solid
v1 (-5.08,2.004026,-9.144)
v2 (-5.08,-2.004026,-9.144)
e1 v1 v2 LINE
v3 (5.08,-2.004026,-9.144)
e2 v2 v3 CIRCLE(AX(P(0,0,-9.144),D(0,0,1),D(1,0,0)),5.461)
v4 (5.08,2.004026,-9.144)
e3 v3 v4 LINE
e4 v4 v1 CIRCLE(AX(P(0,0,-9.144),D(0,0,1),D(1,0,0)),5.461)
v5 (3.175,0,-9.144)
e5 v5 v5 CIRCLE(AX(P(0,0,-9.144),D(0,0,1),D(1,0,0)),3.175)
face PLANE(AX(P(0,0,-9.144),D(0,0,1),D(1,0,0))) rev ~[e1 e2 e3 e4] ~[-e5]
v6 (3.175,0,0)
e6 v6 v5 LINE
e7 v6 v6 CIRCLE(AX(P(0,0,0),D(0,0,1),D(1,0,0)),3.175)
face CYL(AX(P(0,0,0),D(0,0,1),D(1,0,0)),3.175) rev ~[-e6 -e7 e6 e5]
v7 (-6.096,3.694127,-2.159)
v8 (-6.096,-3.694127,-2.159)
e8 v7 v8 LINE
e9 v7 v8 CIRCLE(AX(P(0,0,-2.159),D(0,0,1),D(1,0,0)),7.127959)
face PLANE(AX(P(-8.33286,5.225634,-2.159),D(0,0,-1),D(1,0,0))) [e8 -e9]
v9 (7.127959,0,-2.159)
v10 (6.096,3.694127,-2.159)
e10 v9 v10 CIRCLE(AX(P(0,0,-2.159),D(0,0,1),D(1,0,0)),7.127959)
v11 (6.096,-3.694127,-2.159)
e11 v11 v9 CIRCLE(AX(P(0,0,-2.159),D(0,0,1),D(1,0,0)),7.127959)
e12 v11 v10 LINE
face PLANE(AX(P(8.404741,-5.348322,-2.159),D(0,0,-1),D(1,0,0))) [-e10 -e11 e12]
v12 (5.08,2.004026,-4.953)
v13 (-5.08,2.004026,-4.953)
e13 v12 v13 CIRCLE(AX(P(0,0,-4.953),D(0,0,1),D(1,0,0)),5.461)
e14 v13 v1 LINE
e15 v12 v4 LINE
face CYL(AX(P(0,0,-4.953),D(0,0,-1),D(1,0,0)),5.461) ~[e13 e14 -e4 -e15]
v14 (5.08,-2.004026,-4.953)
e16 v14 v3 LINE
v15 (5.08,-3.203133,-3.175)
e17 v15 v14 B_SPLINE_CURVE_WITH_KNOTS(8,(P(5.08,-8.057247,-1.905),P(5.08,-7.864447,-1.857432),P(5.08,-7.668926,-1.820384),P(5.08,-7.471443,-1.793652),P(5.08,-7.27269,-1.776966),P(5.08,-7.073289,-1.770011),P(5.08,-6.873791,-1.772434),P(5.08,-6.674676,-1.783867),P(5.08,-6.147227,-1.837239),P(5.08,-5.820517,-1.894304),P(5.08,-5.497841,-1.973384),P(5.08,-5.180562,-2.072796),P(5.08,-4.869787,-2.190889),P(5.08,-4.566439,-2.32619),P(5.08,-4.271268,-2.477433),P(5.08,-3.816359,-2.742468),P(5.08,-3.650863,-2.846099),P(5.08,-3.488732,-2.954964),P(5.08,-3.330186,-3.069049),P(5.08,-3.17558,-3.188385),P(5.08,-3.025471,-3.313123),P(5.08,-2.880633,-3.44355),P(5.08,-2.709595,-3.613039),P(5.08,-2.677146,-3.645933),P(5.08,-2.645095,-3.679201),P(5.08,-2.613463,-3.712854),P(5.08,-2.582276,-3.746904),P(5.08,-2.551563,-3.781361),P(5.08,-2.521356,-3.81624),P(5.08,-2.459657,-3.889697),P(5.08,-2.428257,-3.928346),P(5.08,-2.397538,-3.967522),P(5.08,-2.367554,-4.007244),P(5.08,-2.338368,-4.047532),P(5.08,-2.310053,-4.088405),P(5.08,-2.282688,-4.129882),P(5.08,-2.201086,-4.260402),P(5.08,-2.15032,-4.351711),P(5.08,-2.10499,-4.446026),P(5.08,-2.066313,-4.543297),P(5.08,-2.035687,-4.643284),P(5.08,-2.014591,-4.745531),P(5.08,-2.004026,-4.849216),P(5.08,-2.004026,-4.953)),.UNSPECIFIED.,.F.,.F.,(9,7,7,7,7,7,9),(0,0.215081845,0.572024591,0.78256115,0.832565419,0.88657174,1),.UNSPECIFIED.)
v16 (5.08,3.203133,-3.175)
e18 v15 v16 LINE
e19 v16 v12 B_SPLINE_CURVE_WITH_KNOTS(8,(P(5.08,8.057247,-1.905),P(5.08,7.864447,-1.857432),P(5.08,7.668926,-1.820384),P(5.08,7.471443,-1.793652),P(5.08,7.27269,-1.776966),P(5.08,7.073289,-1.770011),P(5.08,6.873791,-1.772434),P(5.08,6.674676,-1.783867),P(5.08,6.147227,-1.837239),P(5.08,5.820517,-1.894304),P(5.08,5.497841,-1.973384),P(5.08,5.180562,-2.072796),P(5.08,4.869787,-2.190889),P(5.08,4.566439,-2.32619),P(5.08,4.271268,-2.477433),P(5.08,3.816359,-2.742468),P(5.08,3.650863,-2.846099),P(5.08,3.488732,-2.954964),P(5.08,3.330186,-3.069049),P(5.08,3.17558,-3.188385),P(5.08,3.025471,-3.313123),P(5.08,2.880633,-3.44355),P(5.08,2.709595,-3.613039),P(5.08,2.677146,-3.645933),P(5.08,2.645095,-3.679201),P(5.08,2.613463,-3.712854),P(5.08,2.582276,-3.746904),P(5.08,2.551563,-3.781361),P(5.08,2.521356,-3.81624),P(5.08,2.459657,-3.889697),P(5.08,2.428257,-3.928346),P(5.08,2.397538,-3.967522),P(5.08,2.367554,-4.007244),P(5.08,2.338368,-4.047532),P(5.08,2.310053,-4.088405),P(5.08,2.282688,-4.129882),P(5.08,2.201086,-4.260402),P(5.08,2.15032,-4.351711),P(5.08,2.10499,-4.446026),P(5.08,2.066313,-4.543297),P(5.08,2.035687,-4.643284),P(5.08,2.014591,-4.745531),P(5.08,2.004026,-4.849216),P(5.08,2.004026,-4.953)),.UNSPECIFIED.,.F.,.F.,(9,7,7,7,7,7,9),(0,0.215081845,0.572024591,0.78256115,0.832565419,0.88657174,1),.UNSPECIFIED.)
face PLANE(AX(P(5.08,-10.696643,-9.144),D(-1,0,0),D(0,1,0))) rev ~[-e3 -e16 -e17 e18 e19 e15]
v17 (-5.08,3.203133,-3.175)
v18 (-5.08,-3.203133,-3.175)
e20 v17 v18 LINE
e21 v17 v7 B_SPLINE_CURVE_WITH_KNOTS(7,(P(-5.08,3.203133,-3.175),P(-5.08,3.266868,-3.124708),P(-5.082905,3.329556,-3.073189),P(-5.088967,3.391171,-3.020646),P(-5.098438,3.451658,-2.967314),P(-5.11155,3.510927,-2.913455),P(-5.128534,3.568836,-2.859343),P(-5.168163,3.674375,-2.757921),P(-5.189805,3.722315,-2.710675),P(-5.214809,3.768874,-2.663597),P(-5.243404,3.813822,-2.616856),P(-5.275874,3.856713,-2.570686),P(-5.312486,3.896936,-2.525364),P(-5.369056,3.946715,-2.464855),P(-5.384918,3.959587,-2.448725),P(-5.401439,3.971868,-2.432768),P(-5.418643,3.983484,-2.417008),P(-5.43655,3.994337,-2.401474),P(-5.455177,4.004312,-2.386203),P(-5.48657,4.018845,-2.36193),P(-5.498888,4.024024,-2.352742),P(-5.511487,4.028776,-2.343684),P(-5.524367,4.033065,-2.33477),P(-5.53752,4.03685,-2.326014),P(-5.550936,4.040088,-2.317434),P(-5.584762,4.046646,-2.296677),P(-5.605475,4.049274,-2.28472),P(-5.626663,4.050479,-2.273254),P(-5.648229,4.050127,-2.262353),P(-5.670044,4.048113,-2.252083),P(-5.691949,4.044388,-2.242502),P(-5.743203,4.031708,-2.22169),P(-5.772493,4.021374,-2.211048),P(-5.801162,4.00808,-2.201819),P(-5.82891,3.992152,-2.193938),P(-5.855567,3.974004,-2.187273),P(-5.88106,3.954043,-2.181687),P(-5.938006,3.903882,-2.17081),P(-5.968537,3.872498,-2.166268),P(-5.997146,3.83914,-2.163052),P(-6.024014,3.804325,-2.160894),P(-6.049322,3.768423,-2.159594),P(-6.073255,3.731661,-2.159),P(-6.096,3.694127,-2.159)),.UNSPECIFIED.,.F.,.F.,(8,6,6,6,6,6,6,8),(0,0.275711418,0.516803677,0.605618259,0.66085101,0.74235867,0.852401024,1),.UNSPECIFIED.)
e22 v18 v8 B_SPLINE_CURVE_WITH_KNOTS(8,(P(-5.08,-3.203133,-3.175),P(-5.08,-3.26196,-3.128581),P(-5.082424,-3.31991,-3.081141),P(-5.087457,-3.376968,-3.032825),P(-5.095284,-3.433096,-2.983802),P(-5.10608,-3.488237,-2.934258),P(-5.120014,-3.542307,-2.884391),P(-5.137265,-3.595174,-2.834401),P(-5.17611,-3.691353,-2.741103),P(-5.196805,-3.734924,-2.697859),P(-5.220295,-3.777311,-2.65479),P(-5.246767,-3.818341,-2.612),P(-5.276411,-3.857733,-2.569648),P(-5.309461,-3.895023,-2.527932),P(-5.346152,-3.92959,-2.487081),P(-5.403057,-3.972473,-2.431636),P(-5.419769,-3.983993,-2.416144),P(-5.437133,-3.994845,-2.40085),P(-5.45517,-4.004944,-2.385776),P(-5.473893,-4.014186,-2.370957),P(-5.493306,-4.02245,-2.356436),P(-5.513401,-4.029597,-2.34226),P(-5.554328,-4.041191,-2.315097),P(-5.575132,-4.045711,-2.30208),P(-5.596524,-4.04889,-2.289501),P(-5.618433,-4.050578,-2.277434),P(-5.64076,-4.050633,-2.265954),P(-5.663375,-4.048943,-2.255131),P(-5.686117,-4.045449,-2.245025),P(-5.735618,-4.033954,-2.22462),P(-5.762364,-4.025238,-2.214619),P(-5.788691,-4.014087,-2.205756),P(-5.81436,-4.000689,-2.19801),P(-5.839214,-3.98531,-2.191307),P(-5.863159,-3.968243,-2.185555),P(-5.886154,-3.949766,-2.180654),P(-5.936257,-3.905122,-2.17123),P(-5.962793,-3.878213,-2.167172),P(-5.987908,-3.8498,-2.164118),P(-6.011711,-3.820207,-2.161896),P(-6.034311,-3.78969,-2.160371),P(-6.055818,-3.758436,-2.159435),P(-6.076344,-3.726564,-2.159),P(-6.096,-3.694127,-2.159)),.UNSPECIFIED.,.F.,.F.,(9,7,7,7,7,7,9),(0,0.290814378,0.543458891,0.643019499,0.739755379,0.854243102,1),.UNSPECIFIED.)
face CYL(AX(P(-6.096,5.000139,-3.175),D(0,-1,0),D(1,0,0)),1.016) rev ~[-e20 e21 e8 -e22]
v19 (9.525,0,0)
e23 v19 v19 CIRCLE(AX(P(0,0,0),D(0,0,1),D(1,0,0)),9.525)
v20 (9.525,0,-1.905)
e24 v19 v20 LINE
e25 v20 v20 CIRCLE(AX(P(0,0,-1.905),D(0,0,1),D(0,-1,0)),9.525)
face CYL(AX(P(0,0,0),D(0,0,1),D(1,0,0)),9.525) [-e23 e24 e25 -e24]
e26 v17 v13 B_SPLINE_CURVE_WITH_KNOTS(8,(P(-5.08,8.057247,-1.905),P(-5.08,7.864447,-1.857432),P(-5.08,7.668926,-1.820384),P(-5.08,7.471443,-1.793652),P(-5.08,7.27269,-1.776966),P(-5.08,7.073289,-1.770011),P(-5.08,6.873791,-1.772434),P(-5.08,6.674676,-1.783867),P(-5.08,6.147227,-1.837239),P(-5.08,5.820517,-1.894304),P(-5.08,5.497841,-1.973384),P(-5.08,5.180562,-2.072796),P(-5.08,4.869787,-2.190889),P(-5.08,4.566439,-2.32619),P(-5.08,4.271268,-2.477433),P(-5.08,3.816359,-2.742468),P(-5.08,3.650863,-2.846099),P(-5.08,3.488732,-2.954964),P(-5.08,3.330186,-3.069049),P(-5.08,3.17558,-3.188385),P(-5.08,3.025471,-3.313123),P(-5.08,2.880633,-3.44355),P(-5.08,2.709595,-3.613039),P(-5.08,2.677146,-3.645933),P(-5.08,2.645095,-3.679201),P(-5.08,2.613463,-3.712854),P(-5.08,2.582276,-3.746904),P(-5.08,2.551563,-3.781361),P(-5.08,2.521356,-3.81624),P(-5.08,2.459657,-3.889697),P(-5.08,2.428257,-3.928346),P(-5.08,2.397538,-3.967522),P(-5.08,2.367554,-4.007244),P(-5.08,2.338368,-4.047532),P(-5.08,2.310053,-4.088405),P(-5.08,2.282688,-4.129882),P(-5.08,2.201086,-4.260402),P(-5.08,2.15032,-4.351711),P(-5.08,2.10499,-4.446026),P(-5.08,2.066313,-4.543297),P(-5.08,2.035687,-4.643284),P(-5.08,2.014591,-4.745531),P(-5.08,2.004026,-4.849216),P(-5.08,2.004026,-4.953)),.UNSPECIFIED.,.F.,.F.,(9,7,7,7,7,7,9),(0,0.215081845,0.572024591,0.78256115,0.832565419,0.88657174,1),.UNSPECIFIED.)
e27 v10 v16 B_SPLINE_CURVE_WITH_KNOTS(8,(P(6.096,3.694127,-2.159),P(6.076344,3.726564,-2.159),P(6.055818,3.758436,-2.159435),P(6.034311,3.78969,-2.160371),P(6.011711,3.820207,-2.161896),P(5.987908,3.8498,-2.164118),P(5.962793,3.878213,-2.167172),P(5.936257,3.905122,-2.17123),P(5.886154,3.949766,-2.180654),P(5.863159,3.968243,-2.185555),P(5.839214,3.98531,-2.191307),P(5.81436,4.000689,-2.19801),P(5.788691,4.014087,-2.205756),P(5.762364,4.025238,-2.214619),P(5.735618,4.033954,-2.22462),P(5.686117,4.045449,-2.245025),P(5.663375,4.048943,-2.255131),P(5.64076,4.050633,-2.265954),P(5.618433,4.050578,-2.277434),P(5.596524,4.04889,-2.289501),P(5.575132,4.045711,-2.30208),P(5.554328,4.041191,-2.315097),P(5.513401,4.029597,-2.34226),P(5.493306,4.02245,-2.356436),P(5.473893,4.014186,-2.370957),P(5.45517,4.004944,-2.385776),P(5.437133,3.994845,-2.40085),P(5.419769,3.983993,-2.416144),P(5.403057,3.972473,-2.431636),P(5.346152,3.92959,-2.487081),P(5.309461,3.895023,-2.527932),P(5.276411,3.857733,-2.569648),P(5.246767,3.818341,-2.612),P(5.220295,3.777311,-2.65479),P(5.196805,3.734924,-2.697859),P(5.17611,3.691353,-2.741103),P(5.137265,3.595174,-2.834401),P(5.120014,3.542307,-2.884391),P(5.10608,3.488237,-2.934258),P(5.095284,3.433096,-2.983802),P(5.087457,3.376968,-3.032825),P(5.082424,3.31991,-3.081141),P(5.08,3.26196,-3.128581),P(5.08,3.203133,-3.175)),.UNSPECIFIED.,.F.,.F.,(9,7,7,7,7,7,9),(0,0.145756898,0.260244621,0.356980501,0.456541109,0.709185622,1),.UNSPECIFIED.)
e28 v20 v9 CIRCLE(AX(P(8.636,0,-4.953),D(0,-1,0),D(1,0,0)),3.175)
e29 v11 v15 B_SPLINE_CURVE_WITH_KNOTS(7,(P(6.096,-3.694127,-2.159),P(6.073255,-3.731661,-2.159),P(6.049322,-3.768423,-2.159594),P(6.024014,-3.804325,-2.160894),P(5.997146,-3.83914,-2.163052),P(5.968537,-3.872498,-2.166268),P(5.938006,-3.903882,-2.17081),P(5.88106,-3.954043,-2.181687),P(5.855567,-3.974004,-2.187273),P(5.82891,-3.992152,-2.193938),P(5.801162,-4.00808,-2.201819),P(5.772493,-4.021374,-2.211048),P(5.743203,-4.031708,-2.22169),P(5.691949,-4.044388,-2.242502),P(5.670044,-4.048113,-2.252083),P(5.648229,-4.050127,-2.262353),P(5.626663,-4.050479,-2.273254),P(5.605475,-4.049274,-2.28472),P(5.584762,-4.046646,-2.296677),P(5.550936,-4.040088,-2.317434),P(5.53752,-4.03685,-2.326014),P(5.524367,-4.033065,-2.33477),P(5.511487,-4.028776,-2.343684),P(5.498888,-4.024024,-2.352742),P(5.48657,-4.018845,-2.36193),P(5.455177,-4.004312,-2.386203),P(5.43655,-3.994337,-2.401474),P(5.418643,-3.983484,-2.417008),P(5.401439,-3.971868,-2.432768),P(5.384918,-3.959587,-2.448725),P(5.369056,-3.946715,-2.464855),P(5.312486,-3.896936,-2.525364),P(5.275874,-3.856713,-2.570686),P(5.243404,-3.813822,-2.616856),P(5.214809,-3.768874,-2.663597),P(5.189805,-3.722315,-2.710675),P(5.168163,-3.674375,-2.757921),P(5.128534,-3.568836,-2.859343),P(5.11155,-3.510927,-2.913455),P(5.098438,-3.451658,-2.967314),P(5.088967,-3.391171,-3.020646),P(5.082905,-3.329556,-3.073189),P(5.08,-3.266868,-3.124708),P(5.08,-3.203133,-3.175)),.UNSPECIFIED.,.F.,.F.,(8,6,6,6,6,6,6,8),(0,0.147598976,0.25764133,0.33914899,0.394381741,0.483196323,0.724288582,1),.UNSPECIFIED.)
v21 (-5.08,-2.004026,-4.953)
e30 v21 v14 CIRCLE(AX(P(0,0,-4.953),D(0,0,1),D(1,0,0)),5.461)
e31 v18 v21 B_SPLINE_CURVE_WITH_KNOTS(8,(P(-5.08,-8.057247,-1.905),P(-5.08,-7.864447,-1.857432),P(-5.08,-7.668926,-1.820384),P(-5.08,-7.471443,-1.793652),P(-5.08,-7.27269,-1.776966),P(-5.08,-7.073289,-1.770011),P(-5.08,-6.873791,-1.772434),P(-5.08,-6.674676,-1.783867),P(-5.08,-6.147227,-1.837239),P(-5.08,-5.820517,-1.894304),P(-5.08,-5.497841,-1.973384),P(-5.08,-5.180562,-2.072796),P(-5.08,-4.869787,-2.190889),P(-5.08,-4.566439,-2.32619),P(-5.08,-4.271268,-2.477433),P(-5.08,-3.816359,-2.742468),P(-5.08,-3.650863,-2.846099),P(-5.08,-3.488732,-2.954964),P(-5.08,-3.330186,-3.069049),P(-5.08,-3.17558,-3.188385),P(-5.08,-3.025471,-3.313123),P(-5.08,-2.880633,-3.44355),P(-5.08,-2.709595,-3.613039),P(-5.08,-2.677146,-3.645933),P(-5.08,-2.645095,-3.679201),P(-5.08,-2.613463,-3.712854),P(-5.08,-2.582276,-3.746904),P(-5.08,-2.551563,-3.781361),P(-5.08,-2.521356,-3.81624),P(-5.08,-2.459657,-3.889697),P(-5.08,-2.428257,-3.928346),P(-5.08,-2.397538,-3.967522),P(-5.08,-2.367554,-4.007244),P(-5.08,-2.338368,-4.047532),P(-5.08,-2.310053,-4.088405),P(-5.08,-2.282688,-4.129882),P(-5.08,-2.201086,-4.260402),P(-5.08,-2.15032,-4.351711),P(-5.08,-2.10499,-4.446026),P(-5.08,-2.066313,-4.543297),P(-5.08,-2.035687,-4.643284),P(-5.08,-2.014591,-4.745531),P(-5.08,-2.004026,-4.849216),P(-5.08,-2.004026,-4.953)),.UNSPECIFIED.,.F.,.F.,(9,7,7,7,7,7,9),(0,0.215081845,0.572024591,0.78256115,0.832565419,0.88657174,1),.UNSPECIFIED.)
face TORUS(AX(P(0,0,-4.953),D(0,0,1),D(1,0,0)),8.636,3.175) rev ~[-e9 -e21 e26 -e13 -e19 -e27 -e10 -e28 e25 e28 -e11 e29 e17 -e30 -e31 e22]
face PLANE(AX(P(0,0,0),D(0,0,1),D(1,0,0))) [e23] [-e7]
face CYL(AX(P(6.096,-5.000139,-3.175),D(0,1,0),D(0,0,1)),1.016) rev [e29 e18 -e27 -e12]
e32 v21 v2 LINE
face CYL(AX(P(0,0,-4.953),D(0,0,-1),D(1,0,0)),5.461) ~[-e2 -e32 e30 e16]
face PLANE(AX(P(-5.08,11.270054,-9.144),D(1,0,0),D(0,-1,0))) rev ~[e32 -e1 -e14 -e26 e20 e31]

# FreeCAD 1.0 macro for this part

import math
import FreeCAD as App
import Part
import Sketcher
Q = App.Units.Quantity


def edges_at(feature, points):
    """Names of the edges that pass closest to the given points."""
    edges = feature.Shape.Edges
    near = lambda p: min(range(len(edges)), key=lambda i: edges[i].distToShape(Part.Vertex(*p))[0])
    return sorted({f"Edge{near(p) + 1}" for p in points})

doc = App.newDocument("Part")
params = doc.addObject("Spreadsheet::Sheet", "Params")
for row, (alias, value) in enumerate([
    ("sketch1_diameter", "0.75 in"),
    ("sketch1_diameter2", "0.25 in"),
    ("pad1_length", "1 in"),
    ("sketch2_height", "1 in"),
    ("sketch2_radius", "0.125 in"),
    ("sketch2_width", "0.215 in"),
    ("sketch2_height2", "0.165 in"),
    ("groove_angle", "360 deg"),
    ("sketch3_width", "0.01 in"),
    ("sketch3_width2", "0.015 in"),
    ("pocket1_length", "0.275 in"),
    ("fillet_radius", "0.04 in"),
], start=1):
    params.set(f"A{row}", alias)
    params.set(f"B{row}", "=" + value)
    params.setAlias(f"B{row}", alias)

body = doc.addObject("PartDesign::Body", "Body")

sketch1 = body.newObject("Sketcher::SketchObject", "Sketch")
sketch1.AttachmentSupport = (doc.getObject("XY_Plane"), [""])
sketch1.MapMode = "FlatFace"
sketch1.addGeometry([
    Part.Circle(App.Vector(0, 0, 0), App.Vector(0, 0, 1), 9.5),
    Part.Circle(App.Vector(0, 0, 0), App.Vector(0, 0, 1), 3.2),
], False)
sketch1.addConstraint([
    Sketcher.Constraint("Coincident", 0, 3, -1, 1),
    Sketcher.Constraint("Coincident", 1, 3, -1, 1),
    Sketcher.Constraint("Diameter", 0, Q("0.75 in")),
    Sketcher.Constraint("Diameter", 1, Q("0.25 in")),
])
sketch1.setExpression("Constraints[2]", "Params.sketch1_diameter")
sketch1.setExpression("Constraints[3]", "Params.sketch1_diameter2")
pad1 = body.newObject("PartDesign::Pad", "Pad")
pad1.Profile = sketch1
pad1.setExpression("Length", "Params.pad1_length")
pad1.Reversed = True

sketch2 = body.newObject("Sketcher::SketchObject", "Sketch001")
sketch2.AttachmentSupport = (doc.getObject("XZ_Plane"), [""])
sketch2.MapMode = "FlatFace"
sketch2.addGeometry([
    Part.ArcOfCircle(Part.Circle(App.Vector(8.6, -5, 0), App.Vector(0, 0, 1), 3.2), math.radians(-40), math.radians(0)),
    Part.ArcOfCircle(Part.Circle(App.Vector(8.6, -5, 0), App.Vector(0, 0, 1), 3.2), math.radians(0), math.radians(180)),
    Part.LineSegment(App.Vector(5.5, -5, 0), App.Vector(5.5, -9.1, 0)),
    Part.LineSegment(App.Vector(5.5, -9.1, 0), App.Vector(0, -9.1, 0)),
    Part.LineSegment(App.Vector(0, -9.1, 0), App.Vector(0, -34.5, 0)),
    Part.LineSegment(App.Vector(0, -34.5, 0), App.Vector(12.1, -34.5, 0)),
    Part.LineSegment(App.Vector(12.1, -34.5, 0), App.Vector(12.1, -9.1, 0)),
    Part.LineSegment(App.Vector(12.1, -9.1, 0), App.Vector(11.1, -9.1, 0)),
    Part.LineSegment(App.Vector(11.1, -9.1, 0), App.Vector(11.1, -7, 0)),
], False)
sketch2.addConstraint([
    Sketcher.Constraint("Tangent", 0, 2, 1, 1),
    Sketcher.Constraint("Tangent", 1, 2, 2, 1),
    Sketcher.Constraint("Coincident", 2, 2, 3, 1),
    Sketcher.Constraint("Coincident", 3, 2, 4, 1),
    Sketcher.Constraint("Coincident", 4, 2, 5, 1),
    Sketcher.Constraint("Coincident", 5, 2, 6, 1),
    Sketcher.Constraint("Coincident", 6, 2, 7, 1),
    Sketcher.Constraint("Coincident", 7, 2, 8, 1),
    Sketcher.Constraint("Coincident", 8, 2, 0, 1),
    Sketcher.Constraint("Vertical", 2),
    Sketcher.Constraint("Horizontal", 3),
    Sketcher.Constraint("Vertical", 4),
    Sketcher.Constraint("Horizontal", 5),
    Sketcher.Constraint("Vertical", 6),
    Sketcher.Constraint("Horizontal", 7),
    Sketcher.Constraint("Vertical", 8),
    Sketcher.Constraint("Equal", 0, 1),
    Sketcher.Constraint("PointOnObject", 3, 2, -2),
    Sketcher.Constraint("Horizontal", 1, 3, 0, 2),
    Sketcher.Constraint("Horizontal", 3, 2, 6, 2),
    Sketcher.Constraint("DistanceY", 4, 2, 4, 1, Q("1 in")),
    Sketcher.Constraint("Radius", 0, Q("0.125 in")),
    Sketcher.Constraint("DistanceX", 3, 2, 3, 1, Q("0.215 in")),
    Sketcher.Constraint("DistanceY", 2, 2, 2, 1, Q("0.165 in")),
    Sketcher.Constraint("DistanceY", 2, 2, -1, 1, Q("0.36 in")),
    Sketcher.Constraint("DistanceX", 5, 1, 5, 2, Q("12.064161 mm")),
    Sketcher.Constraint("DistanceX", 7, 2, 7, 1, Q("1.007218 mm")),
])
sketch2.setExpression("Constraints[20]", "Params.sketch2_height")
sketch2.setExpression("Constraints[21]", "Params.sketch2_radius")
sketch2.setExpression("Constraints[22]", "Params.sketch2_width")
sketch2.setExpression("Constraints[23]", "Params.sketch2_height2")
groove = body.newObject("PartDesign::Groove", "Groove")
groove.Profile = sketch2
groove.ReferenceAxis = (sketch2, ["V_Axis"])
groove.setExpression("Angle", "Params.groove_angle")

sketch3 = body.newObject("Sketcher::SketchObject", "Sketch002")
sketch3.AttachmentSupport = (doc.getObject("XY_Plane"), [""])
sketch3.MapMode = "FlatFace"
sketch3.AttachmentOffset = App.Placement(App.Vector(0, 0, -0.36 * 25.4), App.Rotation())
sketch3.addGeometry([
    Part.LineSegment(App.Vector(-11.2, 10.45, 0), App.Vector(-5.46, 10.45, 0)),
    Part.LineSegment(App.Vector(-5.46, 10.45, 0), App.Vector(-5.46, 11.27, 0)),
    Part.LineSegment(App.Vector(-5.46, 11.27, 0), App.Vector(-5.08, 11.27, 0)),
    Part.LineSegment(App.Vector(-5.08, 11.27, 0), App.Vector(-5.08, -14.19, 0)),
    Part.LineSegment(App.Vector(-5.08, -14.19, 0), App.Vector(-11.2, -14.19, 0)),
    Part.LineSegment(App.Vector(-11.2, -14.19, 0), App.Vector(-11.2, 10.45, 0)),
    Part.LineSegment(App.Vector(5.08, 9.07, 0), App.Vector(5.46, 9.07, 0)),
    Part.LineSegment(App.Vector(5.46, 9.07, 0), App.Vector(5.46, 9.42, 0)),
    Part.LineSegment(App.Vector(5.46, 9.42, 0), App.Vector(11.6, 9.42, 0)),
    Part.LineSegment(App.Vector(11.6, 9.42, 0), App.Vector(11.6, 0, 0)),
    Part.LineSegment(App.Vector(11.6, 0, 0), App.Vector(11.35, 0, 0)),
    Part.LineSegment(App.Vector(11.35, 0, 0), App.Vector(11.35, -10.7, 0)),
    Part.LineSegment(App.Vector(11.35, -10.7, 0), App.Vector(5.46, -10.7, 0)),
    Part.LineSegment(App.Vector(5.46, -10.7, 0), App.Vector(5.08, -10.7, 0)),
    Part.LineSegment(App.Vector(5.08, -10.7, 0), App.Vector(5.08, 9.07, 0)),
], False)
sketch3.addConstraint([
    Sketcher.Constraint("Coincident", 0, 2, 1, 1),
    Sketcher.Constraint("Coincident", 1, 2, 2, 1),
    Sketcher.Constraint("Coincident", 2, 2, 3, 1),
    Sketcher.Constraint("Coincident", 3, 2, 4, 1),
    Sketcher.Constraint("Coincident", 4, 2, 5, 1),
    Sketcher.Constraint("Coincident", 5, 2, 0, 1),
    Sketcher.Constraint("Coincident", 6, 2, 7, 1),
    Sketcher.Constraint("Coincident", 7, 2, 8, 1),
    Sketcher.Constraint("Coincident", 8, 2, 9, 1),
    Sketcher.Constraint("Coincident", 9, 2, 10, 1),
    Sketcher.Constraint("Coincident", 10, 2, 11, 1),
    Sketcher.Constraint("Coincident", 11, 2, 12, 1),
    Sketcher.Constraint("Coincident", 12, 2, 13, 1),
    Sketcher.Constraint("Coincident", 13, 2, 14, 1),
    Sketcher.Constraint("Coincident", 14, 2, 6, 1),
    Sketcher.Constraint("Horizontal", 0),
    Sketcher.Constraint("Vertical", 1),
    Sketcher.Constraint("Horizontal", 2),
    Sketcher.Constraint("Vertical", 3),
    Sketcher.Constraint("Horizontal", 4),
    Sketcher.Constraint("Vertical", 5),
    Sketcher.Constraint("Horizontal", 6),
    Sketcher.Constraint("Vertical", 7),
    Sketcher.Constraint("Horizontal", 8),
    Sketcher.Constraint("Vertical", 9),
    Sketcher.Constraint("Horizontal", 10),
    Sketcher.Constraint("Vertical", 11),
    Sketcher.Constraint("Horizontal", 12),
    Sketcher.Constraint("Horizontal", 13),
    Sketcher.Constraint("Vertical", 14),
    Sketcher.Constraint("PointOnObject", 9, 2, -1),
    Sketcher.Constraint("Vertical", 7, 2, 12, 2),
    Sketcher.Constraint("Equal", 2, 6),
    Sketcher.Constraint("DistanceX", 10, 2, 10, 1, Q("0.01 in")),
    Sketcher.Constraint("DistanceX", 2, 2, -1, 1, Q("0.2 in")),
    Sketcher.Constraint("DistanceX", -1, 1, 13, 2, Q("0.2 in")),
    Sketcher.Constraint("DistanceX", 2, 1, 2, 2, Q("0.015 in")),
    Sketcher.Constraint("DistanceY", 5, 1, 5, 2, Q("24.644 mm")),
    Sketcher.Constraint("DistanceX", 0, 1, 0, 2, Q("5.74372 mm")),
    Sketcher.Constraint("DistanceY", 14, 1, 14, 2, Q("19.768151 mm")),
    Sketcher.Constraint("DistanceX", 8, 1, 8, 2, Q("6.141482 mm")),
    Sketcher.Constraint("DistanceY", 1, 1, 1, 2, Q("0.818785 mm")),
    Sketcher.Constraint("DistanceY", 7, 1, 7, 2, Q("0.351498 mm")),
    Sketcher.Constraint("DistanceY", 9, 2, 9, 1, Q("9.423006 mm")),
    Sketcher.Constraint("DistanceY", -1, 1, 0, 2, Q("10.451268 mm")),
])
sketch3.setExpression("Constraints[33]", "Params.sketch3_width")
sketch3.setExpression("Constraints[36]", "Params.sketch3_width2")
pocket1 = body.newObject("PartDesign::Pocket", "Pocket")
pocket1.Profile = sketch3
pocket1.setExpression("Length", "Params.pocket1_length")
pocket1.Reversed = True
doc.recompute()

fillet = body.newObject("PartDesign::Fillet", "Fillet")
fillet.Base = (pocket1, edges_at(pocket1, [(5.08, 0, -2.159), (-5.08, 0, -2.159)]))
fillet.setExpression("Radius", "Params.fillet_radius")

doc.recompute()
